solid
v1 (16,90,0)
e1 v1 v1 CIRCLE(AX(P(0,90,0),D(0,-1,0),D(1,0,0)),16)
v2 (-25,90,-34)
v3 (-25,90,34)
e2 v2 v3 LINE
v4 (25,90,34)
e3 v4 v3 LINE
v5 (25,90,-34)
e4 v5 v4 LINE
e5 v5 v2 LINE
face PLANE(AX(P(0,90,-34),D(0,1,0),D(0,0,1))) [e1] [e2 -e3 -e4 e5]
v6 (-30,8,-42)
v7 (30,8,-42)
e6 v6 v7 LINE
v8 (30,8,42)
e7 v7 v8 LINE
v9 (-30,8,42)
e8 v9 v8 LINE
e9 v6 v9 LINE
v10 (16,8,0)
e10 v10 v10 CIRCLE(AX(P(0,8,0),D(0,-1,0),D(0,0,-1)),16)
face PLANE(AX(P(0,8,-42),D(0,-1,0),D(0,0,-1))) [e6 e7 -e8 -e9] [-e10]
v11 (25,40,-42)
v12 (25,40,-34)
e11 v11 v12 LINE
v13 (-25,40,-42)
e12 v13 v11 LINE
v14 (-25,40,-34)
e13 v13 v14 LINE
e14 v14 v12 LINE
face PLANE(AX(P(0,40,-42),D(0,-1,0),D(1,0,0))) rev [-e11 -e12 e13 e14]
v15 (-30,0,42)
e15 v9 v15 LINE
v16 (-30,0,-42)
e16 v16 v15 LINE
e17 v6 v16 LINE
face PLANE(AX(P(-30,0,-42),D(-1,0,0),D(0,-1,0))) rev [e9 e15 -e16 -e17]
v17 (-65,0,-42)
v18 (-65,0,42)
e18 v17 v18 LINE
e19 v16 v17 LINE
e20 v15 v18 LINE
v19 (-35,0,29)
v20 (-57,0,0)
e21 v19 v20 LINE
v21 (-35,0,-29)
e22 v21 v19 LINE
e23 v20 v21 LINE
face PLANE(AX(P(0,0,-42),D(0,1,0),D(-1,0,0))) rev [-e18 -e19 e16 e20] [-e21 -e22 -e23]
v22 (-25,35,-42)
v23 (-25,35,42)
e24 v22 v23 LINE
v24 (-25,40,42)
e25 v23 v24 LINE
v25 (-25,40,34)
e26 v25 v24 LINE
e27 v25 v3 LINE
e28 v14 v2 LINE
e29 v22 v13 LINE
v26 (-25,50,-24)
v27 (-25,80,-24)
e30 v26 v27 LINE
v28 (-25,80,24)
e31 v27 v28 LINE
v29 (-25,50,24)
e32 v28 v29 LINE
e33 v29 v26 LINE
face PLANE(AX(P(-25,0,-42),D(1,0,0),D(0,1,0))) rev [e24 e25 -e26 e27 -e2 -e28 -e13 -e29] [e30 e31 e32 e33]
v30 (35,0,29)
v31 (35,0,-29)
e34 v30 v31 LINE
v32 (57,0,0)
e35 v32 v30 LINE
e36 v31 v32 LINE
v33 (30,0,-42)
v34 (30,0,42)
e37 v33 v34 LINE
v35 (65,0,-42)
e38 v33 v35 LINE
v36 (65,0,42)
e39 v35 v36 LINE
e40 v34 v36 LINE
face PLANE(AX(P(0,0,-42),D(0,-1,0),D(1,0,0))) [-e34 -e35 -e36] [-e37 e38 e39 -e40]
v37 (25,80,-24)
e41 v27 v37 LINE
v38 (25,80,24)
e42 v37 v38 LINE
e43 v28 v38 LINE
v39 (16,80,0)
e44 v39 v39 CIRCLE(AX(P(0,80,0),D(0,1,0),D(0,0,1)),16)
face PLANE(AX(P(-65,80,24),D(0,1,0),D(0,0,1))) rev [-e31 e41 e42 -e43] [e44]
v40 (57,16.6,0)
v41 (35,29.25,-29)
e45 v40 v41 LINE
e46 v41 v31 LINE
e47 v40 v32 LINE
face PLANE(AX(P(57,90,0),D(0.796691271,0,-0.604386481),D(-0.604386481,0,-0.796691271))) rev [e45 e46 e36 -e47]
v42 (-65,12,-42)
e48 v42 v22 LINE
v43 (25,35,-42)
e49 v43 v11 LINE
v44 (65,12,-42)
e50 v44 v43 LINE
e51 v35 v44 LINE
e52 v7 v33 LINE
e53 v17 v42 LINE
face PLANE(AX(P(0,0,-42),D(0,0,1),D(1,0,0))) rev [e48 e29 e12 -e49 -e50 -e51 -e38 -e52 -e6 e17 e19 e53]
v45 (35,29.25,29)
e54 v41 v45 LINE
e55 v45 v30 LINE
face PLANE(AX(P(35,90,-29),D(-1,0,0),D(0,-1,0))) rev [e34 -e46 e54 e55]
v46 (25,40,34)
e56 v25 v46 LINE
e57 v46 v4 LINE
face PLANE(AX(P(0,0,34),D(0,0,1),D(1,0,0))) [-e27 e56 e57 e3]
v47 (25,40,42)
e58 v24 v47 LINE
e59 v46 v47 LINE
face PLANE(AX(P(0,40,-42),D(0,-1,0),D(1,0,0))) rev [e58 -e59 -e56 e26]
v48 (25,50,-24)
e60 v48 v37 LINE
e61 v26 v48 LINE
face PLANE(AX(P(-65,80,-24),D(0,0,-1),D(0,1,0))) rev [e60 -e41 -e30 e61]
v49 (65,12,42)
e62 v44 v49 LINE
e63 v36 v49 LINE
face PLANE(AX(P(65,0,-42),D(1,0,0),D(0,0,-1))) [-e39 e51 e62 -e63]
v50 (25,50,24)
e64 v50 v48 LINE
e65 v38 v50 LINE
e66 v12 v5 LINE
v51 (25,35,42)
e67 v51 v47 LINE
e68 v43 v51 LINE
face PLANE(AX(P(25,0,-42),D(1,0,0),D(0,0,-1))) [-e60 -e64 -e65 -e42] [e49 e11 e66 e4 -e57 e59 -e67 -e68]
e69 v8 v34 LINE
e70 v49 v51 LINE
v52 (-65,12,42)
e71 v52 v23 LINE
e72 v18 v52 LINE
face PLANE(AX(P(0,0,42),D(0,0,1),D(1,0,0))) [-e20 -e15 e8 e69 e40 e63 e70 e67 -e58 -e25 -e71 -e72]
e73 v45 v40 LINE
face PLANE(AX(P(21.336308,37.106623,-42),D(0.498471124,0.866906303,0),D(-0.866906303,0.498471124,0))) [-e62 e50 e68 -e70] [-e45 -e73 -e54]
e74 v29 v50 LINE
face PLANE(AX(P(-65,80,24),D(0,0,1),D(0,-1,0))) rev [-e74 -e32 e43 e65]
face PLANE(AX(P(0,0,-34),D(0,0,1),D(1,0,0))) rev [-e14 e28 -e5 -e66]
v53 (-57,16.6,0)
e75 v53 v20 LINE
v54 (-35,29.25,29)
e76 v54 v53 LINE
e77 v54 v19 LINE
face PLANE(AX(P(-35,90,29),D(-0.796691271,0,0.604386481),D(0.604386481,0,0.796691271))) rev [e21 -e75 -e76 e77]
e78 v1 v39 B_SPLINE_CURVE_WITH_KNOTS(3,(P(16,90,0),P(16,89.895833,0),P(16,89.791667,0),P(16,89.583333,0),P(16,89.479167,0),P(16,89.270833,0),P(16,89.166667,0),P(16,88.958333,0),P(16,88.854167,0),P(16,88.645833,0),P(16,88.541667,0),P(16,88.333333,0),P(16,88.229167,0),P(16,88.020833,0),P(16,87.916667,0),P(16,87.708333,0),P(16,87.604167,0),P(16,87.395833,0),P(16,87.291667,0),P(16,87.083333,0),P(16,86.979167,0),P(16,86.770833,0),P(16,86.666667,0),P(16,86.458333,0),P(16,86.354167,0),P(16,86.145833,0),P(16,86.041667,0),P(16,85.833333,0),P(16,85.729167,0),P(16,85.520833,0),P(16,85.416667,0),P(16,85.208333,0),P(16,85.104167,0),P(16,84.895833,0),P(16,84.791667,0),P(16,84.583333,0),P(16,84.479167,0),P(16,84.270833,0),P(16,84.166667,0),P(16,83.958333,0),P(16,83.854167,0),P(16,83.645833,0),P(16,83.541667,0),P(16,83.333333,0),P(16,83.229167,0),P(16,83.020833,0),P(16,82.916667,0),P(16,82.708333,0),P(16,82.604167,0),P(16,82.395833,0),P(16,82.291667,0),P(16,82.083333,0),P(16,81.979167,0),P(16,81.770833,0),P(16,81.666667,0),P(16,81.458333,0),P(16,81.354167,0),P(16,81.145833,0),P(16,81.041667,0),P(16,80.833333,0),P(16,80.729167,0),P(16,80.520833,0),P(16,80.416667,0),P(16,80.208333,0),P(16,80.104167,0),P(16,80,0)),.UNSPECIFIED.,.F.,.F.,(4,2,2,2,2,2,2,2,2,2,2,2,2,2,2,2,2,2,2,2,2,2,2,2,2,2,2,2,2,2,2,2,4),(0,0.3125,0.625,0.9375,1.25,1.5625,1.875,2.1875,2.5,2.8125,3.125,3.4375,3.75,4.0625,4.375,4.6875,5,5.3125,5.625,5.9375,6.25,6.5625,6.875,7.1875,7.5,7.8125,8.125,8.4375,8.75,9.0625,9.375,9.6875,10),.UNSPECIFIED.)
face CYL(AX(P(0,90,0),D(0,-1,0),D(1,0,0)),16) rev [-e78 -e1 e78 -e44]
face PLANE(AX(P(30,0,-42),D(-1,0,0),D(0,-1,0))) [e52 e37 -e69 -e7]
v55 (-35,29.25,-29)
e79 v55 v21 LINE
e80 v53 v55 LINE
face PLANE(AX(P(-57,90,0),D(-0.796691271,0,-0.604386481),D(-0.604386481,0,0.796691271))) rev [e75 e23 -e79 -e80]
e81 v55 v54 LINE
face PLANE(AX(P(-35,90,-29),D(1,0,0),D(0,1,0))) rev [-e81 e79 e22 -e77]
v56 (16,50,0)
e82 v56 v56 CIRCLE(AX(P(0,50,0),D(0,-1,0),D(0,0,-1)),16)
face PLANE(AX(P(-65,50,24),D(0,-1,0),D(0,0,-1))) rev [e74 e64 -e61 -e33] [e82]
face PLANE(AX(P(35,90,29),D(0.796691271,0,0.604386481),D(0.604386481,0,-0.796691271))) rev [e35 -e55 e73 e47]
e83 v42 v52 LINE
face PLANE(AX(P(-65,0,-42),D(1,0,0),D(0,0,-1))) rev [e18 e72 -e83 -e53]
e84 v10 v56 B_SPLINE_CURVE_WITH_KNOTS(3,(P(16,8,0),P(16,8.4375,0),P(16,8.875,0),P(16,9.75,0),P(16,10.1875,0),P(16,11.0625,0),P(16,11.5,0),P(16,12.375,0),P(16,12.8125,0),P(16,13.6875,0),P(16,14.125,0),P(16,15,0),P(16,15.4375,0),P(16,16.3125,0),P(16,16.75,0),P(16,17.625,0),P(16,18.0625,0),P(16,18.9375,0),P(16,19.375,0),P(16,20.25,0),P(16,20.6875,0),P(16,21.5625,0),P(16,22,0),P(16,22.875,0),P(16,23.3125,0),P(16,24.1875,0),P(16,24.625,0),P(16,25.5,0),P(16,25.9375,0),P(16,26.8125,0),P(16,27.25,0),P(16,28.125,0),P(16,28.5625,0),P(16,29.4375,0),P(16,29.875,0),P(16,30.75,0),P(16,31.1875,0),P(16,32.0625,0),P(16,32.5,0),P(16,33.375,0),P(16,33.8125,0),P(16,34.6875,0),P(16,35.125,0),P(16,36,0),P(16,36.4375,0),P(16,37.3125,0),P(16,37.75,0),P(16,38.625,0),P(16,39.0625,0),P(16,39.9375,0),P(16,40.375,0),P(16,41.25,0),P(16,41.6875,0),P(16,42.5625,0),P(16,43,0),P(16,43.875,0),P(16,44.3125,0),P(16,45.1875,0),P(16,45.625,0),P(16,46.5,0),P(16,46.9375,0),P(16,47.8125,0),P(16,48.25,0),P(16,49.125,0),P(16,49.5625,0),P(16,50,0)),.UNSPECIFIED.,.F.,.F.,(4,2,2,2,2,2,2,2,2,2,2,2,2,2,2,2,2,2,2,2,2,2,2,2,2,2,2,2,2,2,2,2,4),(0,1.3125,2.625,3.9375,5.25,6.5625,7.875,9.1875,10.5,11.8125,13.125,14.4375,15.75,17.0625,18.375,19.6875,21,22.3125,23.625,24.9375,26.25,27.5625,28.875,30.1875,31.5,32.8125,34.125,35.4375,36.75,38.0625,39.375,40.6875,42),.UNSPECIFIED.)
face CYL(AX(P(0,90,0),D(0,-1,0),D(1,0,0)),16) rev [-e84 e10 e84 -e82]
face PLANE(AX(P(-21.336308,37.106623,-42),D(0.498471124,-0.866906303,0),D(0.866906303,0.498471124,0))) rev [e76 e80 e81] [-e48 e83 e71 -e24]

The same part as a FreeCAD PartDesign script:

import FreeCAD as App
import Part
import Sketcher


def add_polygon(sketch, points):
    """Adds a closed chain of lines whose ends are joined by coincident constraints."""
    first, n = sketch.GeometryCount, len(points)
    for a, b in zip(points, points[1:] + points[:1]):
        sketch.addGeometry(Part.LineSegment(App.Vector(*a, 0), App.Vector(*b, 0)), False)
    for i in range(n):
        sketch.addConstraint(Sketcher.Constraint("Coincident", first + i, 2, first + (i + 1) % n, 1))

doc = App.newDocument("Part")
body = doc.addObject("PartDesign::Body", "Body")

sketch1 = body.newObject("Sketcher::SketchObject", "Sketch")
sketch1.AttachmentSupport = (doc.getObject("XY_Plane"), [""])
sketch1.MapMode = "FlatFace"
add_polygon(sketch1, [(-30, 0), (-30, 8), (30, 8), (30, 0), (65, 0), (65, 12), (25, 35), (25, 40), (-25, 40), (-25, 35), (-65, 12), (-65, 0)])
sketch1.addConstraint([
    Sketcher.Constraint("Vertical", 0),
    Sketcher.Constraint("Horizontal", 1),
    Sketcher.Constraint("Vertical", 2),
    Sketcher.Constraint("Horizontal", 3),
    Sketcher.Constraint("Vertical", 4),
    Sketcher.Constraint("Vertical", 6),
    Sketcher.Constraint("Horizontal", 7),
    Sketcher.Constraint("Vertical", 8),
    Sketcher.Constraint("Vertical", 10),
    Sketcher.Constraint("Horizontal", 11),
    Sketcher.Constraint("Symmetric", 3, 2, 10, 2, -1, 1),
    Sketcher.Constraint("Symmetric", 5, 2, 8, 2, -2),
    Sketcher.Constraint("Symmetric", 2, 2, 11, 2, -2),
    Sketcher.Constraint("Horizontal", 4, 2, 9, 2),
    Sketcher.Constraint("DistanceX", 1, 1, 1, 2, 60.0),
    Sketcher.Constraint("DistanceX", 3, 1, 3, 2, 35.0),
    Sketcher.Constraint("DistanceX", 7, 2, 7, 1, 50.0),
    Sketcher.Constraint("DistanceY", 0, 1, 0, 2, 8.0),
    Sketcher.Constraint("DistanceY", 4, 1, 4, 2, 12.0),
    Sketcher.Constraint("DistanceY", 6, 1, 6, 2, 5.0),
    Sketcher.Constraint("DistanceY", -1, 1, 5, 2, 35.0),
])
pad1 = body.newObject("PartDesign::Pad", "Pad")
pad1.Profile = sketch1
pad1.Type = "TwoLengths"
pad1.Length = 42
pad1.Length2 = 42

sketch2 = body.newObject("Sketcher::SketchObject", "Sketch001")
sketch2.AttachmentSupport = (doc.getObject("XY_Plane"), [""])
sketch2.MapMode = "FlatFace"
add_polygon(sketch2, [(-25, 90), (-25, 40), (25, 40), (25, 90)])
sketch2.addConstraint([
    Sketcher.Constraint("Vertical", 0),
    Sketcher.Constraint("Horizontal", 1),
    Sketcher.Constraint("Vertical", 2),
    Sketcher.Constraint("Horizontal", 3),
    Sketcher.Constraint("Equal", 3, 0),
    Sketcher.Constraint("DistanceX", 1, 1, 1, 2, 50.0),
    Sketcher.Constraint("DistanceX", 0, 2, -1, 1, 25.0),
    Sketcher.Constraint("DistanceY", -1, 1, 0, 2, 40.0),
])
pad2 = body.newObject("PartDesign::Pad", "Pad001")
pad2.Profile = sketch2
pad2.Type = "TwoLengths"
pad2.Length = 34
pad2.Length2 = 34

sketch3 = body.newObject("Sketcher::SketchObject", "Sketch002")
sketch3.AttachmentSupport = (doc.getObject("YZ_Plane"), [""])
sketch3.MapMode = "FlatFace"
sketch3.AttachmentOffset = App.Placement(App.Vector(0, 0, 25), App.Rotation())
add_polygon(sketch3, [(80, 24), (50, 24), (50, -24), (80, -24)])
sketch3.addConstraint([
    Sketcher.Constraint("Horizontal", 0),
    Sketcher.Constraint("Vertical", 1),
    Sketcher.Constraint("Horizontal", 2),
    Sketcher.Constraint("Vertical", 3),
    Sketcher.Constraint("DistanceX", 0, 2, 0, 1, 30.0),
    Sketcher.Constraint("DistanceY", 1, 2, 1, 1, 48.0),
    Sketcher.Constraint("DistanceX", -1, 1, 0, 2, 50.0),
    Sketcher.Constraint("DistanceY", -1, 1, 0, 2, 24.0),
])
pocket1 = body.newObject("PartDesign::Pocket", "Pocket")
pocket1.Profile = sketch3
pocket1.Type = "ThroughAll"

sketch4 = body.newObject("Sketcher::SketchObject", "Sketch003")
sketch4.AttachmentSupport = (doc.getObject("XZ_Plane"), [""])
sketch4.MapMode = "FlatFace"
sketch4.addGeometry(Part.Circle(App.Vector(0, 0, 0), App.Vector(0, 0, 1), 16), False)
add_polygon(sketch4, [(-35, 29), (-57, 0), (-35, -29)])
add_polygon(sketch4, [(35, 29), (35, -29), (57, 0)])
sketch4.addConstraint([
    Sketcher.Constraint("Vertical", 3),
    Sketcher.Constraint("Vertical", 4),
    Sketcher.Constraint("Coincident", 0, 3, -1, 1),
    Sketcher.Constraint("Symmetric", 3, 2, 4, 2, -1, 1),
    Sketcher.Constraint("Symmetric", 1, 2, 5, 2, -1, 1),
    Sketcher.Constraint("PointOnObject", 1, 2, -1),
    Sketcher.Constraint("Parallel", 2, 6),
    Sketcher.Constraint("Horizontal", 2, 2, 4, 2),
    Sketcher.Constraint("Diameter", 0, 32.0),
    Sketcher.Constraint("DistanceY", 3, 1, 3, 2, 58.0),
    Sketcher.Constraint("DistanceX", 1, 2, -1, 1, 57.0),
    Sketcher.Constraint("DistanceX", 2, 2, -1, 1, 35.0),
])
pocket2 = body.newObject("PartDesign::Pocket", "Pocket001")
pocket2.Profile = sketch4
pocket2.Type = "ThroughAll"

doc.recompute()
